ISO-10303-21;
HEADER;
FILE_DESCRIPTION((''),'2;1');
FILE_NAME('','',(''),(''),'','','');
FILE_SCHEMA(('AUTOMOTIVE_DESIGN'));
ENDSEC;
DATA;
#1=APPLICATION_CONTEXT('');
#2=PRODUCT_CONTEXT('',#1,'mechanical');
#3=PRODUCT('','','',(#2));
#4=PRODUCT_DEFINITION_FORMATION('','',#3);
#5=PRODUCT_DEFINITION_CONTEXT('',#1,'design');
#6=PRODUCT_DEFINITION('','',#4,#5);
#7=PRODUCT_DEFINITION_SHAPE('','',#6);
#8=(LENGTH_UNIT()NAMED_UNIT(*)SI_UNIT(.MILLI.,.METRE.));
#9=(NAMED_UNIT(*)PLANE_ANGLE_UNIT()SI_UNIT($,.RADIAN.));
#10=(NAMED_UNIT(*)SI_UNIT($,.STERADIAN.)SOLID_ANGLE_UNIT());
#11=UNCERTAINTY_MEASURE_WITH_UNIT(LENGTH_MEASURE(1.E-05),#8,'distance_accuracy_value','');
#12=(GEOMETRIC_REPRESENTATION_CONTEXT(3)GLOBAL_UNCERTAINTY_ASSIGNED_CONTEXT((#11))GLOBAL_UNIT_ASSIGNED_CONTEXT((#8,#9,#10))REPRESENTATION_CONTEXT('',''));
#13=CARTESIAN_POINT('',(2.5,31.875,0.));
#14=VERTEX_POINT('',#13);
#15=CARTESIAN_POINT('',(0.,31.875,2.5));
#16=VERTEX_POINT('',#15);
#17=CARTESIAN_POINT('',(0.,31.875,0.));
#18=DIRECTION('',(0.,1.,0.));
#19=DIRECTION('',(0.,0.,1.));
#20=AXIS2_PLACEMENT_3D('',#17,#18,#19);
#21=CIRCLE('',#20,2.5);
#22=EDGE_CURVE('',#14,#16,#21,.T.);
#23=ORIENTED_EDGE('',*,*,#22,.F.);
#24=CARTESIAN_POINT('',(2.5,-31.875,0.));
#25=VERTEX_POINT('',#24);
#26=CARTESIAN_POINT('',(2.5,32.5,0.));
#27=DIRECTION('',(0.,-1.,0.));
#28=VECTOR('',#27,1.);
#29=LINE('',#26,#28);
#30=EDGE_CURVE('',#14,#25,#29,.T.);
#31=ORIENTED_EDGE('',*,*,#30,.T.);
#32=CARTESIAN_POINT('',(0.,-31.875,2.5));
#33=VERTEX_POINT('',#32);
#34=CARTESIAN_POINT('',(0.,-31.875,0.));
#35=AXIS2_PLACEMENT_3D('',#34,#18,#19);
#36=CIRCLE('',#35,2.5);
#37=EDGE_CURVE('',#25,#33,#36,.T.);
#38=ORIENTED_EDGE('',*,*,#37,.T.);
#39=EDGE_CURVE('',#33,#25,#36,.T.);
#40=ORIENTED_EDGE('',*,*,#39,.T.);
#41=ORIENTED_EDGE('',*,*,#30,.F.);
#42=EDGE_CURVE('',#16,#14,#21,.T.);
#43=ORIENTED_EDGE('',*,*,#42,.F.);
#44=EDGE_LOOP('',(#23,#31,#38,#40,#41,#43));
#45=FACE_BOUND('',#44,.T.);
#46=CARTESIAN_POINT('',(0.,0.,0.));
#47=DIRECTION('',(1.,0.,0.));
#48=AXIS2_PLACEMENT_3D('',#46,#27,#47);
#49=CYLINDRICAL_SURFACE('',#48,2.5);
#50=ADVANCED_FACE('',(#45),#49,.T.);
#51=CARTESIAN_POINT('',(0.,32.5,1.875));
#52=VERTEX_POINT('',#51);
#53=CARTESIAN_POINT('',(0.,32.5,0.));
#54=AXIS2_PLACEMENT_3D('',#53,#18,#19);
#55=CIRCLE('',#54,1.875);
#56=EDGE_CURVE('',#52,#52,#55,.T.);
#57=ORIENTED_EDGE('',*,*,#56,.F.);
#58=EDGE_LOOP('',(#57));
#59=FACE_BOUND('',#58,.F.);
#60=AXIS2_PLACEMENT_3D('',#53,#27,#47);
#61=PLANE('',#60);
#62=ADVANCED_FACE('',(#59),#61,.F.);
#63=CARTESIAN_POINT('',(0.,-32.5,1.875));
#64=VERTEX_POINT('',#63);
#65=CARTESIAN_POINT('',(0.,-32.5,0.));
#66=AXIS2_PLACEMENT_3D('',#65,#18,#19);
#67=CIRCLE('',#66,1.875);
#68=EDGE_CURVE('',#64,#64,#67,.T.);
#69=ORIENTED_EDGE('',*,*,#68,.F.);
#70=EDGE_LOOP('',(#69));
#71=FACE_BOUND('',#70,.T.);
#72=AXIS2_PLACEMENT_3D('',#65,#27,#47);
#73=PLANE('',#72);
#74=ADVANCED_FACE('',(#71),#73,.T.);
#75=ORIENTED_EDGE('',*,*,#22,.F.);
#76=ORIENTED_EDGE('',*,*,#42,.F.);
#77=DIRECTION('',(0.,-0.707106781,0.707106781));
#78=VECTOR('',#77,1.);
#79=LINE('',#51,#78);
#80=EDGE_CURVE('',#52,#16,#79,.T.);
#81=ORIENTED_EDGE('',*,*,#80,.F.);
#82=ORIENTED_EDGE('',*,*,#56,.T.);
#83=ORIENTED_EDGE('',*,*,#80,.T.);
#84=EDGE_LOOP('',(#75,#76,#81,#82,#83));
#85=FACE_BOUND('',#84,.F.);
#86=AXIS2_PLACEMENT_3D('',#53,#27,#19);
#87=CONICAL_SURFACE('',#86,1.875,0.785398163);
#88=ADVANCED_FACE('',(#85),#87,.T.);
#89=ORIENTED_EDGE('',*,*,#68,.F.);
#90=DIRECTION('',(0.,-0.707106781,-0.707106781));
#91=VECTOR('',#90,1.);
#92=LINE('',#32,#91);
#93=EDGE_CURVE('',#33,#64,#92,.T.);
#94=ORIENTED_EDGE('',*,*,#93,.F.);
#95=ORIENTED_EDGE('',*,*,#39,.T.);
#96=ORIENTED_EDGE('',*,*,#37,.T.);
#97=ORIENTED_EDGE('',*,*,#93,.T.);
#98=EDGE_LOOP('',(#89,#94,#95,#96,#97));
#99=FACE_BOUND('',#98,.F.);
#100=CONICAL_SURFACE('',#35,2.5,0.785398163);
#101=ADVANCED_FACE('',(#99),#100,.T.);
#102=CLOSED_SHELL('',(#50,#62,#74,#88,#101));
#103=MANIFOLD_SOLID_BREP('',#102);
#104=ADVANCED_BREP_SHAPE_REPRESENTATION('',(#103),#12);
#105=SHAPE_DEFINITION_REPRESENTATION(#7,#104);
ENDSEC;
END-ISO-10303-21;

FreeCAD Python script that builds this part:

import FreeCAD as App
import Part
import Sketcher

doc = App.newDocument("Part")
body = doc.addObject("PartDesign::Body", "Body")

# Sketch on XZ plane
sketch1 = doc.addObject("Sketcher::SketchObject", "Sketch")
body.addObject(sketch1)
sketch1.AttachmentSupport = (doc.XZ_Plane, [""])
sketch1.MapMode = "FlatFace"
sketch1.addGeometry(Part.Circle(App.Vector(0, 0, 0), App.Vector(0, 0, 1), 2.5), False)
sketch1.addConstraint([
    Sketcher.Constraint("Coincident", 0, 3, -1, 1),
    Sketcher.Constraint("Diameter", 0, 5.0),
])
pad1 = doc.addObject("PartDesign::Pad", "Pad")
body.addObject(pad1)
pad1.Profile = sketch1
pad1.Length = 65
pad1.Midplane = True

# Sketch on YZ plane
sketch2 = doc.addObject("Sketcher::SketchObject", "Sketch001")
body.addObject(sketch2)
sketch2.AttachmentSupport = (doc.YZ_Plane, [""])
sketch2.MapMode = "FlatFace"
sketch2.addGeometry([
    Part.LineSegment(App.Vector(32.5, 4.5, 0), App.Vector(-32.5, 4.5, 0)),  # 0
    Part.LineSegment(App.Vector(-32.5, 4.5, 0), App.Vector(-32.5, 1.9, 0)),  # 1
    Part.LineSegment(App.Vector(-32.5, 1.9, 0), App.Vector(-31.9, 2.5, 0)),  # 2
    Part.LineSegment(App.Vector(-31.9, 2.5, 0), App.Vector(31.9, 2.5, 0)),  # 3
    Part.LineSegment(App.Vector(31.9, 2.5, 0), App.Vector(32.5, 1.9, 0)),  # 4
    Part.LineSegment(App.Vector(32.5, 1.9, 0), App.Vector(32.5, 4.5, 0)),  # 5
], False)
sketch2.addConstraint([
    Sketcher.Constraint("Coincident", 0, 2, 1, 1),
    Sketcher.Constraint("Coincident", 1, 2, 2, 1),
    Sketcher.Constraint("Coincident", 2, 2, 3, 1),
    Sketcher.Constraint("Coincident", 3, 2, 4, 1),
    Sketcher.Constraint("Coincident", 4, 2, 5, 1),
    Sketcher.Constraint("Coincident", 5, 2, 0, 1),
    Sketcher.Constraint("Horizontal", 0),
    Sketcher.Constraint("Vertical", 1),
    Sketcher.Constraint("Horizontal", 3),
    Sketcher.Constraint("Vertical", 5),
    Sketcher.Constraint("Symmetric", 1, 2, 4, 2, -2),
    Sketcher.Constraint("Perpendicular", 2, 4),
    Sketcher.Constraint("Equal", 2, 4),
    Sketcher.Constraint("DistanceX", 0, 2, 0, 1, 65.0),
    Sketcher.Constraint("DistanceY", 2, 2, 0, 2, 2.0),
    Sketcher.Constraint("DistanceX", 3, 1, 3, 2, 63.75),
    Sketcher.Constraint("DistanceY", -1, 1, 0, 2, 4.5),
])
groove = doc.addObject("PartDesign::Groove", "Groove")
body.addObject(groove)
groove.Profile = sketch2
groove.ReferenceAxis = (sketch2, ["H_Axis"])
groove.Angle = 360

doc.recompute()
